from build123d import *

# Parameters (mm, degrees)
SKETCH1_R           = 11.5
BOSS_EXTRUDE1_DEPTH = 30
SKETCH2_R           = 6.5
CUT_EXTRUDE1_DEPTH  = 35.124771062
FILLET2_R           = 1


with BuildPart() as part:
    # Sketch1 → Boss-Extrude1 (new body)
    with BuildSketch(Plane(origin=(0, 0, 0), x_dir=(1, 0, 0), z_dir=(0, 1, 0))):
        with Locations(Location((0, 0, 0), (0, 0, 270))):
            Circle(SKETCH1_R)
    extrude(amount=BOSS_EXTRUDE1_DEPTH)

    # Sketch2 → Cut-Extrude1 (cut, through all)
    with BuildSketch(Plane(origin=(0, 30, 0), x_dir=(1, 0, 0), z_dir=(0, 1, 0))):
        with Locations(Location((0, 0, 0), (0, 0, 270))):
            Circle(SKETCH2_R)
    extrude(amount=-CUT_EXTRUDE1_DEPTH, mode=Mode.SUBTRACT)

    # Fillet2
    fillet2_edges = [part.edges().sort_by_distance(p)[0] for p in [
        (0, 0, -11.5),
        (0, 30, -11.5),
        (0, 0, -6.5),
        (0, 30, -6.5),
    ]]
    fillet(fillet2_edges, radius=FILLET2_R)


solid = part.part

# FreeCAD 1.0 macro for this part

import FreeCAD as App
import Part
import Sketcher
from FreeCAD import Vector


def edges_at(feature, points):
    """Names of the edges that pass closest to the given points."""
    edges = feature.Shape.Edges
    near = lambda p: min(range(len(edges)), key=lambda i: edges[i].distToShape(Part.Vertex(*p))[0])
    return sorted({f"Edge{near(p) + 1}" for p in points})

doc = App.newDocument("Part")
body = doc.addObject("PartDesign::Body", "Body")

# Sketch on XZ plane
sketch1 = doc.addObject("Sketcher::SketchObject", "Sketch")
body.addObject(sketch1)
sketch1.AttachmentSupport = (doc.XZ_Plane, [""])
sketch1.MapMode = "FlatFace"
sketch1.addGeometry(Part.Circle(Vector(0, 0, 0), Vector(0, 0, 1), 12), False)
sketch1.addConstraint([
    Sketcher.Constraint("Coincident", 0, 3, -1, 1),
    Sketcher.Constraint("Diameter", 0, 23.0),
])
pad1 = doc.addObject("PartDesign::Pad", "Pad")
body.addObject(pad1)
pad1.Profile = sketch1
pad1.Length = 30
pad1.Reversed = True

# Sketch on XZ plane
sketch2 = doc.addObject("Sketcher::SketchObject", "Sketch001")
body.addObject(sketch2)
sketch2.AttachmentSupport = (doc.XZ_Plane, [""])
sketch2.MapMode = "FlatFace"
sketch2.AttachmentOffset = App.Placement(Vector(0, 0, -30), App.Rotation())
sketch2.addGeometry(Part.Circle(Vector(0, 0, 0), Vector(0, 0, 1), 6), False)
sketch2.addConstraint([
    Sketcher.Constraint("Coincident", 0, 3, -1, 1),
    Sketcher.Constraint("Diameter", 0, 13.0),
])
pocket1 = doc.addObject("PartDesign::Pocket", "Pocket")
body.addObject(pocket1)
pocket1.Profile = sketch2
pocket1.Type = "ThroughAll"
pocket1.Reversed = True
doc.recompute()

fillet = doc.addObject("PartDesign::Fillet", "Fillet")
body.addObject(fillet)
fillet.Base = (pocket1, edges_at(pocket1, [
    (0, 0, -11.5),
    (0, 30, -11.5),
    (0, 0, -6.5),
    (0, 30, -6.5),
]))
fillet.Radius = 1

doc.recompute()
